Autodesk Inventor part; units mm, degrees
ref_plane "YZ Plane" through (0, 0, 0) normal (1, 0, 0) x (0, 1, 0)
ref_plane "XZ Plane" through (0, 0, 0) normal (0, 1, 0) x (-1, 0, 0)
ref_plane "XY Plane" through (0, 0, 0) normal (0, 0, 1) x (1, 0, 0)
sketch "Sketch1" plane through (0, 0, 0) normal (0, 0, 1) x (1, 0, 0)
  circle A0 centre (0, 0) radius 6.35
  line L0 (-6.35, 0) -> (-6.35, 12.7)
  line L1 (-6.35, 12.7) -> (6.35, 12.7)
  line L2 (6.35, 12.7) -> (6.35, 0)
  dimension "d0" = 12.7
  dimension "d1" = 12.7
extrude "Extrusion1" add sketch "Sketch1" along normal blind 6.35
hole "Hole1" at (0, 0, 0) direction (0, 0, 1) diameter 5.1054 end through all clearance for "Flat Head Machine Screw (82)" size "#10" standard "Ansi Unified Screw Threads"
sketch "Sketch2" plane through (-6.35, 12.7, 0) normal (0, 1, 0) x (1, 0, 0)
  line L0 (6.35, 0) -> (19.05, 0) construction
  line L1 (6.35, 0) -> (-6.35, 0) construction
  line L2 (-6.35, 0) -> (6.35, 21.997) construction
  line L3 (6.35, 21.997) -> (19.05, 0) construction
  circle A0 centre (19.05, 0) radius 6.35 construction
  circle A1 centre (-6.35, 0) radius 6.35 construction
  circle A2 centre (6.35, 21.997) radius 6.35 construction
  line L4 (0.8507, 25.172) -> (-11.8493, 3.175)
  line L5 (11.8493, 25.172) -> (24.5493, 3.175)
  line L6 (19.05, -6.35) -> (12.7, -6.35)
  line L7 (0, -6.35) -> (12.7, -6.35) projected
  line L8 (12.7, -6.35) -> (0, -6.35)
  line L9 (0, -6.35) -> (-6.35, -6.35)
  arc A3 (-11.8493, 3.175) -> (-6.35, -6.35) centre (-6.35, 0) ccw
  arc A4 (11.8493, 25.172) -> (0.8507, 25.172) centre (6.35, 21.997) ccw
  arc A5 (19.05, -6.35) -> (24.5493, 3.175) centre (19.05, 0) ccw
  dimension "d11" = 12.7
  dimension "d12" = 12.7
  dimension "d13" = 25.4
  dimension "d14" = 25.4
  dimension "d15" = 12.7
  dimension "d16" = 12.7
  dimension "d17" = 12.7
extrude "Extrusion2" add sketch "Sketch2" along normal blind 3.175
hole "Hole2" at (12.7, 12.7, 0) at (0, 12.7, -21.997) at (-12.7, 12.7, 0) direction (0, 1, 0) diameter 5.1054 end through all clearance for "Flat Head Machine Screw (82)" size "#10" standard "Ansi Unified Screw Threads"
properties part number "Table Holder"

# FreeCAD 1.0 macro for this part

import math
import FreeCAD as App
import Part
import Sketcher
from FreeCAD import Vector
Q = App.Units.Quantity

doc = App.newDocument("Part")
body = doc.addObject("PartDesign::Body", "Body")

# Sketch on XY plane
sketch1 = body.newObject("Sketcher::SketchObject", "Sketch")
sketch1.AttachmentSupport = (doc.getObject("XY_Plane"), [""])
sketch1.MapMode = "FlatFace"
sketch1.addGeometry(Part.ArcOfCircle(Part.Circle(Vector(0, 0, 0), Vector(0, 0, 1), 6.35), math.radians(180), math.radians(360)), False)
sketch1.addGeometry(Part.LineSegment(Vector(6.35, 0, 0), Vector(6.35, 12.7, 0)), False)
sketch1.addGeometry(Part.LineSegment(Vector(6.35, 12.7, 0), Vector(-6.35, 12.7, 0)), False)
sketch1.addGeometry(Part.LineSegment(Vector(-6.35, 12.7, 0), Vector(-6.35, 0, 0)), False)
sketch1.addConstraint(Sketcher.Constraint("Tangent", 0, 2, 1, 1))
sketch1.addConstraint(Sketcher.Constraint("Coincident", 1, 2, 2, 1))
sketch1.addConstraint(Sketcher.Constraint("Coincident", 2, 2, 3, 1))
sketch1.addConstraint(Sketcher.Constraint("Tangent", 3, 2, 0, 1))
sketch1.addConstraint(Sketcher.Constraint("Vertical", 1))
sketch1.addConstraint(Sketcher.Constraint("Horizontal", 2))
sketch1.addConstraint(Sketcher.Constraint("Vertical", 3))
sketch1.addConstraint(Sketcher.Constraint("Coincident", 0, 3, -1, 1))
sketch1.addConstraint(Sketcher.Constraint("Equal", 2, 1))
sketch1.addConstraint(Sketcher.Constraint("Radius", 0, Q("0.25 in")))
pad1 = body.newObject("PartDesign::Pad", "Pad")
pad1.Profile = sketch1
pad1.Length = Q("0.25 in")

# Sketch on XY plane
sketch2 = body.newObject("Sketcher::SketchObject", "Sketch001")
sketch2.AttachmentSupport = (doc.getObject("XY_Plane"), [""])
sketch2.MapMode = "FlatFace"
sketch2.addGeometry(Part.Circle(Vector(0, 0, 0), Vector(0, 0, 1), 2.5527), False)
sketch2.addConstraint(Sketcher.Constraint("Coincident", 0, 3, -1, 1))
sketch2.addConstraint(Sketcher.Constraint("Diameter", 0, Q("0.201 in")))
doc.recompute()
hole = body.newObject("PartDesign::Hole", "Hole")
hole.Profile = sketch2
hole.ThreadType = "None"
hole.Diameter = Q("0.201 in")
hole.DepthType = "ThroughAll"
hole.Reversed = True

# Sketch on XZ plane
sketch3 = body.newObject("Sketcher::SketchObject", "Sketch002")
sketch3.AttachmentSupport = (doc.getObject("XZ_Plane"), [""])
sketch3.MapMode = "FlatFace"
sketch3.AttachmentOffset = App.Placement(Vector(0, 0, -0.5 * 25.4), App.Rotation())
sketch3.addGeometry(Part.ArcOfCircle(Part.Circle(Vector(0, -21.997, 0), Vector(0, 0, 1), 6.350034), math.radians(-150.000175), math.radians(-29.999825)), False)
sketch3.addGeometry(Part.LineSegment(Vector(-5.4993, -25.172, 0), Vector(-18.1993, -3.175, 0)), False)
sketch3.addGeometry(Part.ArcOfCircle(Part.Circle(Vector(-12.7, 0, 0), Vector(0, 0, 1), 6.35), math.radians(90), math.radians(209.999825)), False)
sketch3.addGeometry(Part.LineSegment(Vector(-12.7, 6.35, 0), Vector(12.7, 6.35, 0)), False)
sketch3.addGeometry(Part.ArcOfCircle(Part.Circle(Vector(12.7, 0, 0), Vector(0, 0, 1), 6.35), math.radians(-29.999825), math.radians(90)), False)
sketch3.addGeometry(Part.LineSegment(Vector(18.1993, -3.175, 0), Vector(5.4993, -25.172, 0)), False)
sketch3.addConstraint(Sketcher.Constraint("Tangent", 0, 1, 1, 1))
sketch3.addConstraint(Sketcher.Constraint("Tangent", 1, 2, 2, 2))
sketch3.addConstraint(Sketcher.Constraint("Tangent", 2, 1, 3, 1))
sketch3.addConstraint(Sketcher.Constraint("Tangent", 3, 2, 4, 2))
sketch3.addConstraint(Sketcher.Constraint("Tangent", 4, 1, 5, 1))
sketch3.addConstraint(Sketcher.Constraint("Tangent", 5, 2, 0, 2))
sketch3.addConstraint(Sketcher.Constraint("Horizontal", 3))
sketch3.addConstraint(Sketcher.Constraint("Equal", 0, 2))
sketch3.addConstraint(Sketcher.Constraint("Equal", 2, 4))
sketch3.addConstraint(Sketcher.Constraint("Symmetric", 2, 3, 4, 3, -1, 1))
sketch3.addConstraint(Sketcher.Constraint("PointOnObject", 0, 3, -2))
sketch3.addConstraint(Sketcher.Constraint("DistanceX", 3, 1, 3, 2, Q("1 in")))
sketch3.addConstraint(Sketcher.Constraint("Radius", 0, Q("0.25 in")))
sketch3.addConstraint(Sketcher.Constraint("Distance", 1, Q("1 in")))
pad2 = body.newObject("PartDesign::Pad", "Pad001")
pad2.Profile = sketch3
pad2.Length = Q("0.125 in")
pad2.Reversed = True

# Sketch on XZ plane
sketch4 = body.newObject("Sketcher::SketchObject", "Sketch003")
sketch4.AttachmentSupport = (doc.getObject("XZ_Plane"), [""])
sketch4.MapMode = "FlatFace"
sketch4.AttachmentOffset = App.Placement(Vector(0, 0, -0.5 * 25.4), App.Rotation())
sketch4.addGeometry(Part.Circle(Vector(12.7, 0, 0), Vector(0, 0, 1), 2.5527), False)
sketch4.addGeometry(Part.Circle(Vector(0, -21.997, 0), Vector(0, 0, 1), 2.5527), False)
sketch4.addGeometry(Part.Circle(Vector(-12.7, 0, 0), Vector(0, 0, 1), 2.5527), False)
sketch4.addConstraint(Sketcher.Constraint("Equal", 0, 1))
sketch4.addConstraint(Sketcher.Constraint("Equal", 1, 2))
sketch4.addConstraint(Sketcher.Constraint("Symmetric", 0, 3, 2, 3, -1, 1))
sketch4.addConstraint(Sketcher.Constraint("PointOnObject", 0, 3, -1))
sketch4.addConstraint(Sketcher.Constraint("PointOnObject", 1, 3, -2))
sketch4.addConstraint(Sketcher.Constraint("Diameter", 0, Q("0.201 in")))
sketch4.addConstraint(Sketcher.Constraint("DistanceX", 2, 3, 0, 3, Q("1 in")))
sketch4.addConstraint(Sketcher.Constraint("DistanceY", 1, 3, -1, 1, 21.997))
doc.recompute()
hole2 = body.newObject("PartDesign::Hole", "Hole001")
hole2.Profile = sketch4
hole2.ThreadType = "None"
hole2.Diameter = Q("0.201 in")
hole2.DepthType = "ThroughAll"

doc.recompute()
